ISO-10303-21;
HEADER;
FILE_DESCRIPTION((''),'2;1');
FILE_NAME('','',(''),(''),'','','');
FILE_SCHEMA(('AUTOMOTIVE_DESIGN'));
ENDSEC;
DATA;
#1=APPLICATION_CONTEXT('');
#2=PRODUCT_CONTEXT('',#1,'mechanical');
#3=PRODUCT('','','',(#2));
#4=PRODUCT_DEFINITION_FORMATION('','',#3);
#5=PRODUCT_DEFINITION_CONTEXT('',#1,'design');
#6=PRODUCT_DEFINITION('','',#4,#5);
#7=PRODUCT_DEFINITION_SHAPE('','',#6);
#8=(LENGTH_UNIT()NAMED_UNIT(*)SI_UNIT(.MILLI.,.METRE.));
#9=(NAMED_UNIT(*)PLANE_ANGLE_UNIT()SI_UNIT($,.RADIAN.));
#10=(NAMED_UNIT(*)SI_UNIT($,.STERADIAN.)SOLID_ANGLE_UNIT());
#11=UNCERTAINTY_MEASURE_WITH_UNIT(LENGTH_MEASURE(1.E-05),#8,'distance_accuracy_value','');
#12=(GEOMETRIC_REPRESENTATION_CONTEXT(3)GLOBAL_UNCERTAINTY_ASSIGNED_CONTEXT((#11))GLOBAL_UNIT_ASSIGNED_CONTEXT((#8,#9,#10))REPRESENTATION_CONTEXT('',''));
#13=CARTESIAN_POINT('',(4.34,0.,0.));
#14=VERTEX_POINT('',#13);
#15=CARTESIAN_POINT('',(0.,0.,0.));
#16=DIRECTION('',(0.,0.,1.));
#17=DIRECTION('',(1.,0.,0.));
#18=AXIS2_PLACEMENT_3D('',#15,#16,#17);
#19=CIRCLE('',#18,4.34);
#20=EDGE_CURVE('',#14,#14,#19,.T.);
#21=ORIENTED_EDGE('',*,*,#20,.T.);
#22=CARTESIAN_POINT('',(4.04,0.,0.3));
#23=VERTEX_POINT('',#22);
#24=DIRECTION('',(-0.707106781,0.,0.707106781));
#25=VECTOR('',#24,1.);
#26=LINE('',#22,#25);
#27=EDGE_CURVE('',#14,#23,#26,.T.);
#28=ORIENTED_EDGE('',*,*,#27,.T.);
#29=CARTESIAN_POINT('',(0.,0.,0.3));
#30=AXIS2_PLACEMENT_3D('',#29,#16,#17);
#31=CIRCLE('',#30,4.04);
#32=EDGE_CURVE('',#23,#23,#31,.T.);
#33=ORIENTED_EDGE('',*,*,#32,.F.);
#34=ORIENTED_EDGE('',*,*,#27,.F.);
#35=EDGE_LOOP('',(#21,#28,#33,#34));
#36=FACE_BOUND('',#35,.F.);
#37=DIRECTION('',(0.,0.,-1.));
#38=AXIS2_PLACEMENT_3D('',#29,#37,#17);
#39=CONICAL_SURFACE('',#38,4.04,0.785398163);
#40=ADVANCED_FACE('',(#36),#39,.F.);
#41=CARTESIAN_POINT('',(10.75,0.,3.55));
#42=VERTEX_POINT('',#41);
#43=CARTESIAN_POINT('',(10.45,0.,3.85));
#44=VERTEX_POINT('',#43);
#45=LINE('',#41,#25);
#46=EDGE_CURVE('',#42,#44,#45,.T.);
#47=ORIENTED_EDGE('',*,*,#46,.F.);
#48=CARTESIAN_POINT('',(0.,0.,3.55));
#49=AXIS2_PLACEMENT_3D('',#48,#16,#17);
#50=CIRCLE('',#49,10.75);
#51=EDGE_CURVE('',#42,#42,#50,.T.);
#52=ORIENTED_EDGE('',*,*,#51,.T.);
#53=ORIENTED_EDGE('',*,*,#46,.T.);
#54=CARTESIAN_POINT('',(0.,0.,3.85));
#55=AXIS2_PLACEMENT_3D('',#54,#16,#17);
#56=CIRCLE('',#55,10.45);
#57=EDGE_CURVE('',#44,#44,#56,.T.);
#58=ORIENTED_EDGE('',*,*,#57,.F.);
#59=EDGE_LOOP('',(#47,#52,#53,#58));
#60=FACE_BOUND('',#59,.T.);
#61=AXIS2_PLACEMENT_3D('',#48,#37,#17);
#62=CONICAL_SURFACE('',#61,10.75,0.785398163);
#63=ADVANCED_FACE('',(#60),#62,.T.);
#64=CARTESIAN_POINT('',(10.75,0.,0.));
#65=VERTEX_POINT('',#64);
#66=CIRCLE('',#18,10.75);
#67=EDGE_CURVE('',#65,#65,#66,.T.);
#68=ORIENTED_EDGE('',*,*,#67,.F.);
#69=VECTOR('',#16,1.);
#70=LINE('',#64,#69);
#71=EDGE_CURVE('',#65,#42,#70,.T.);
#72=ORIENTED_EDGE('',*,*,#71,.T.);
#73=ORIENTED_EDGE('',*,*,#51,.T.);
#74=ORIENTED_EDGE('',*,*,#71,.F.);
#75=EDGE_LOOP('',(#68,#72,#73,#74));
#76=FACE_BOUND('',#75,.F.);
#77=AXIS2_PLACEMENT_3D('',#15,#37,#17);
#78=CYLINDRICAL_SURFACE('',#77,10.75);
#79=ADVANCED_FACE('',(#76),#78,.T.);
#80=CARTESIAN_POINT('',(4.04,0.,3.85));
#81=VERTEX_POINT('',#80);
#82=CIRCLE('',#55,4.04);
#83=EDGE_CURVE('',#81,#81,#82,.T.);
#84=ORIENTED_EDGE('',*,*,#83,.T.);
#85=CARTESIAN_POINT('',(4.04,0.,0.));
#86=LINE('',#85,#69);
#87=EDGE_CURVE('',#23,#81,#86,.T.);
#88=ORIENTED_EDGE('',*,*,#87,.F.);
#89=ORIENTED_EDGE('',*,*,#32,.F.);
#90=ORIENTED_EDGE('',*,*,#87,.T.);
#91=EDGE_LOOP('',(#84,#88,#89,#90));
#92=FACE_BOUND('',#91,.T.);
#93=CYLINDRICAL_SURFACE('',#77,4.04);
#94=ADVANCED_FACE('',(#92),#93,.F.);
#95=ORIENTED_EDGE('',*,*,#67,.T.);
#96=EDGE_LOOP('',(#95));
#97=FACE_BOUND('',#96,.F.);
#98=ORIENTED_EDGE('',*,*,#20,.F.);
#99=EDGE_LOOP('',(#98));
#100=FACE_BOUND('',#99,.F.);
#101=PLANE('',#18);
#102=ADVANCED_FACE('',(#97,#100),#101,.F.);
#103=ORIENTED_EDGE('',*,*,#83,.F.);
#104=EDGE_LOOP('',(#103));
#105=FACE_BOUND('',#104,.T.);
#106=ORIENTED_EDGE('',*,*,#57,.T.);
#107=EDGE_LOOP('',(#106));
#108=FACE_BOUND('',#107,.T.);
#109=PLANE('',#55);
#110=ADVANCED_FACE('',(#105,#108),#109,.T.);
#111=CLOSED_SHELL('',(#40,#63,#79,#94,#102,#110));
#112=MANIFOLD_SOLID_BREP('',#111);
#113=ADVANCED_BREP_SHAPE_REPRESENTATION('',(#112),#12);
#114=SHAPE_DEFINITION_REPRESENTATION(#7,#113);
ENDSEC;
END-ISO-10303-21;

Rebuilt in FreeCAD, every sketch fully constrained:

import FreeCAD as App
import Part
import Sketcher
from FreeCAD import Vector


def edges_at(feature, points):
    """Names of the edges that pass closest to the given points."""
    edges = feature.Shape.Edges
    near = lambda p: min(range(len(edges)), key=lambda i: edges[i].distToShape(Part.Vertex(*p))[0])
    return sorted({f"Edge{near(p) + 1}" for p in points})

doc = App.newDocument("Part")
body = doc.addObject("PartDesign::Body", "Body")

# Sketch on XY plane
sketch1 = body.newObject("Sketcher::SketchObject", "Sketch")
sketch1.AttachmentSupport = (doc.getObject("XY_Plane"), [""])
sketch1.MapMode = "FlatFace"
sketch1.addGeometry(Part.Circle(Vector(0, 0, 0), Vector(0, 0, 1), 10.75), False)
sketch1.addGeometry(Part.Circle(Vector(0, 0, 0), Vector(0, 0, 1), 4.04), False)
sketch1.addConstraint(Sketcher.Constraint("Coincident", 0, 3, -1, 1))
sketch1.addConstraint(Sketcher.Constraint("Coincident", 1, 3, -1, 1))
sketch1.addConstraint(Sketcher.Constraint("Diameter", 0, 21.5))
sketch1.addConstraint(Sketcher.Constraint("Diameter", 1, 8.08))
pad1 = body.newObject("PartDesign::Pad", "Pad")
pad1.Profile = sketch1
pad1.Length = 3.85
doc.recompute()

chamfer = body.newObject("PartDesign::Chamfer", "Chamfer")
chamfer.Base = (pad1, edges_at(pad1, [(-10.75, 0, 3.85)]))
chamfer.Size = 0.3
doc.recompute()

chamfer2 = body.newObject("PartDesign::Chamfer", "Chamfer001")
chamfer2.Base = (chamfer, edges_at(chamfer, [(-4.04, 0, 0)]))
chamfer2.Size = 0.3

doc.recompute()
